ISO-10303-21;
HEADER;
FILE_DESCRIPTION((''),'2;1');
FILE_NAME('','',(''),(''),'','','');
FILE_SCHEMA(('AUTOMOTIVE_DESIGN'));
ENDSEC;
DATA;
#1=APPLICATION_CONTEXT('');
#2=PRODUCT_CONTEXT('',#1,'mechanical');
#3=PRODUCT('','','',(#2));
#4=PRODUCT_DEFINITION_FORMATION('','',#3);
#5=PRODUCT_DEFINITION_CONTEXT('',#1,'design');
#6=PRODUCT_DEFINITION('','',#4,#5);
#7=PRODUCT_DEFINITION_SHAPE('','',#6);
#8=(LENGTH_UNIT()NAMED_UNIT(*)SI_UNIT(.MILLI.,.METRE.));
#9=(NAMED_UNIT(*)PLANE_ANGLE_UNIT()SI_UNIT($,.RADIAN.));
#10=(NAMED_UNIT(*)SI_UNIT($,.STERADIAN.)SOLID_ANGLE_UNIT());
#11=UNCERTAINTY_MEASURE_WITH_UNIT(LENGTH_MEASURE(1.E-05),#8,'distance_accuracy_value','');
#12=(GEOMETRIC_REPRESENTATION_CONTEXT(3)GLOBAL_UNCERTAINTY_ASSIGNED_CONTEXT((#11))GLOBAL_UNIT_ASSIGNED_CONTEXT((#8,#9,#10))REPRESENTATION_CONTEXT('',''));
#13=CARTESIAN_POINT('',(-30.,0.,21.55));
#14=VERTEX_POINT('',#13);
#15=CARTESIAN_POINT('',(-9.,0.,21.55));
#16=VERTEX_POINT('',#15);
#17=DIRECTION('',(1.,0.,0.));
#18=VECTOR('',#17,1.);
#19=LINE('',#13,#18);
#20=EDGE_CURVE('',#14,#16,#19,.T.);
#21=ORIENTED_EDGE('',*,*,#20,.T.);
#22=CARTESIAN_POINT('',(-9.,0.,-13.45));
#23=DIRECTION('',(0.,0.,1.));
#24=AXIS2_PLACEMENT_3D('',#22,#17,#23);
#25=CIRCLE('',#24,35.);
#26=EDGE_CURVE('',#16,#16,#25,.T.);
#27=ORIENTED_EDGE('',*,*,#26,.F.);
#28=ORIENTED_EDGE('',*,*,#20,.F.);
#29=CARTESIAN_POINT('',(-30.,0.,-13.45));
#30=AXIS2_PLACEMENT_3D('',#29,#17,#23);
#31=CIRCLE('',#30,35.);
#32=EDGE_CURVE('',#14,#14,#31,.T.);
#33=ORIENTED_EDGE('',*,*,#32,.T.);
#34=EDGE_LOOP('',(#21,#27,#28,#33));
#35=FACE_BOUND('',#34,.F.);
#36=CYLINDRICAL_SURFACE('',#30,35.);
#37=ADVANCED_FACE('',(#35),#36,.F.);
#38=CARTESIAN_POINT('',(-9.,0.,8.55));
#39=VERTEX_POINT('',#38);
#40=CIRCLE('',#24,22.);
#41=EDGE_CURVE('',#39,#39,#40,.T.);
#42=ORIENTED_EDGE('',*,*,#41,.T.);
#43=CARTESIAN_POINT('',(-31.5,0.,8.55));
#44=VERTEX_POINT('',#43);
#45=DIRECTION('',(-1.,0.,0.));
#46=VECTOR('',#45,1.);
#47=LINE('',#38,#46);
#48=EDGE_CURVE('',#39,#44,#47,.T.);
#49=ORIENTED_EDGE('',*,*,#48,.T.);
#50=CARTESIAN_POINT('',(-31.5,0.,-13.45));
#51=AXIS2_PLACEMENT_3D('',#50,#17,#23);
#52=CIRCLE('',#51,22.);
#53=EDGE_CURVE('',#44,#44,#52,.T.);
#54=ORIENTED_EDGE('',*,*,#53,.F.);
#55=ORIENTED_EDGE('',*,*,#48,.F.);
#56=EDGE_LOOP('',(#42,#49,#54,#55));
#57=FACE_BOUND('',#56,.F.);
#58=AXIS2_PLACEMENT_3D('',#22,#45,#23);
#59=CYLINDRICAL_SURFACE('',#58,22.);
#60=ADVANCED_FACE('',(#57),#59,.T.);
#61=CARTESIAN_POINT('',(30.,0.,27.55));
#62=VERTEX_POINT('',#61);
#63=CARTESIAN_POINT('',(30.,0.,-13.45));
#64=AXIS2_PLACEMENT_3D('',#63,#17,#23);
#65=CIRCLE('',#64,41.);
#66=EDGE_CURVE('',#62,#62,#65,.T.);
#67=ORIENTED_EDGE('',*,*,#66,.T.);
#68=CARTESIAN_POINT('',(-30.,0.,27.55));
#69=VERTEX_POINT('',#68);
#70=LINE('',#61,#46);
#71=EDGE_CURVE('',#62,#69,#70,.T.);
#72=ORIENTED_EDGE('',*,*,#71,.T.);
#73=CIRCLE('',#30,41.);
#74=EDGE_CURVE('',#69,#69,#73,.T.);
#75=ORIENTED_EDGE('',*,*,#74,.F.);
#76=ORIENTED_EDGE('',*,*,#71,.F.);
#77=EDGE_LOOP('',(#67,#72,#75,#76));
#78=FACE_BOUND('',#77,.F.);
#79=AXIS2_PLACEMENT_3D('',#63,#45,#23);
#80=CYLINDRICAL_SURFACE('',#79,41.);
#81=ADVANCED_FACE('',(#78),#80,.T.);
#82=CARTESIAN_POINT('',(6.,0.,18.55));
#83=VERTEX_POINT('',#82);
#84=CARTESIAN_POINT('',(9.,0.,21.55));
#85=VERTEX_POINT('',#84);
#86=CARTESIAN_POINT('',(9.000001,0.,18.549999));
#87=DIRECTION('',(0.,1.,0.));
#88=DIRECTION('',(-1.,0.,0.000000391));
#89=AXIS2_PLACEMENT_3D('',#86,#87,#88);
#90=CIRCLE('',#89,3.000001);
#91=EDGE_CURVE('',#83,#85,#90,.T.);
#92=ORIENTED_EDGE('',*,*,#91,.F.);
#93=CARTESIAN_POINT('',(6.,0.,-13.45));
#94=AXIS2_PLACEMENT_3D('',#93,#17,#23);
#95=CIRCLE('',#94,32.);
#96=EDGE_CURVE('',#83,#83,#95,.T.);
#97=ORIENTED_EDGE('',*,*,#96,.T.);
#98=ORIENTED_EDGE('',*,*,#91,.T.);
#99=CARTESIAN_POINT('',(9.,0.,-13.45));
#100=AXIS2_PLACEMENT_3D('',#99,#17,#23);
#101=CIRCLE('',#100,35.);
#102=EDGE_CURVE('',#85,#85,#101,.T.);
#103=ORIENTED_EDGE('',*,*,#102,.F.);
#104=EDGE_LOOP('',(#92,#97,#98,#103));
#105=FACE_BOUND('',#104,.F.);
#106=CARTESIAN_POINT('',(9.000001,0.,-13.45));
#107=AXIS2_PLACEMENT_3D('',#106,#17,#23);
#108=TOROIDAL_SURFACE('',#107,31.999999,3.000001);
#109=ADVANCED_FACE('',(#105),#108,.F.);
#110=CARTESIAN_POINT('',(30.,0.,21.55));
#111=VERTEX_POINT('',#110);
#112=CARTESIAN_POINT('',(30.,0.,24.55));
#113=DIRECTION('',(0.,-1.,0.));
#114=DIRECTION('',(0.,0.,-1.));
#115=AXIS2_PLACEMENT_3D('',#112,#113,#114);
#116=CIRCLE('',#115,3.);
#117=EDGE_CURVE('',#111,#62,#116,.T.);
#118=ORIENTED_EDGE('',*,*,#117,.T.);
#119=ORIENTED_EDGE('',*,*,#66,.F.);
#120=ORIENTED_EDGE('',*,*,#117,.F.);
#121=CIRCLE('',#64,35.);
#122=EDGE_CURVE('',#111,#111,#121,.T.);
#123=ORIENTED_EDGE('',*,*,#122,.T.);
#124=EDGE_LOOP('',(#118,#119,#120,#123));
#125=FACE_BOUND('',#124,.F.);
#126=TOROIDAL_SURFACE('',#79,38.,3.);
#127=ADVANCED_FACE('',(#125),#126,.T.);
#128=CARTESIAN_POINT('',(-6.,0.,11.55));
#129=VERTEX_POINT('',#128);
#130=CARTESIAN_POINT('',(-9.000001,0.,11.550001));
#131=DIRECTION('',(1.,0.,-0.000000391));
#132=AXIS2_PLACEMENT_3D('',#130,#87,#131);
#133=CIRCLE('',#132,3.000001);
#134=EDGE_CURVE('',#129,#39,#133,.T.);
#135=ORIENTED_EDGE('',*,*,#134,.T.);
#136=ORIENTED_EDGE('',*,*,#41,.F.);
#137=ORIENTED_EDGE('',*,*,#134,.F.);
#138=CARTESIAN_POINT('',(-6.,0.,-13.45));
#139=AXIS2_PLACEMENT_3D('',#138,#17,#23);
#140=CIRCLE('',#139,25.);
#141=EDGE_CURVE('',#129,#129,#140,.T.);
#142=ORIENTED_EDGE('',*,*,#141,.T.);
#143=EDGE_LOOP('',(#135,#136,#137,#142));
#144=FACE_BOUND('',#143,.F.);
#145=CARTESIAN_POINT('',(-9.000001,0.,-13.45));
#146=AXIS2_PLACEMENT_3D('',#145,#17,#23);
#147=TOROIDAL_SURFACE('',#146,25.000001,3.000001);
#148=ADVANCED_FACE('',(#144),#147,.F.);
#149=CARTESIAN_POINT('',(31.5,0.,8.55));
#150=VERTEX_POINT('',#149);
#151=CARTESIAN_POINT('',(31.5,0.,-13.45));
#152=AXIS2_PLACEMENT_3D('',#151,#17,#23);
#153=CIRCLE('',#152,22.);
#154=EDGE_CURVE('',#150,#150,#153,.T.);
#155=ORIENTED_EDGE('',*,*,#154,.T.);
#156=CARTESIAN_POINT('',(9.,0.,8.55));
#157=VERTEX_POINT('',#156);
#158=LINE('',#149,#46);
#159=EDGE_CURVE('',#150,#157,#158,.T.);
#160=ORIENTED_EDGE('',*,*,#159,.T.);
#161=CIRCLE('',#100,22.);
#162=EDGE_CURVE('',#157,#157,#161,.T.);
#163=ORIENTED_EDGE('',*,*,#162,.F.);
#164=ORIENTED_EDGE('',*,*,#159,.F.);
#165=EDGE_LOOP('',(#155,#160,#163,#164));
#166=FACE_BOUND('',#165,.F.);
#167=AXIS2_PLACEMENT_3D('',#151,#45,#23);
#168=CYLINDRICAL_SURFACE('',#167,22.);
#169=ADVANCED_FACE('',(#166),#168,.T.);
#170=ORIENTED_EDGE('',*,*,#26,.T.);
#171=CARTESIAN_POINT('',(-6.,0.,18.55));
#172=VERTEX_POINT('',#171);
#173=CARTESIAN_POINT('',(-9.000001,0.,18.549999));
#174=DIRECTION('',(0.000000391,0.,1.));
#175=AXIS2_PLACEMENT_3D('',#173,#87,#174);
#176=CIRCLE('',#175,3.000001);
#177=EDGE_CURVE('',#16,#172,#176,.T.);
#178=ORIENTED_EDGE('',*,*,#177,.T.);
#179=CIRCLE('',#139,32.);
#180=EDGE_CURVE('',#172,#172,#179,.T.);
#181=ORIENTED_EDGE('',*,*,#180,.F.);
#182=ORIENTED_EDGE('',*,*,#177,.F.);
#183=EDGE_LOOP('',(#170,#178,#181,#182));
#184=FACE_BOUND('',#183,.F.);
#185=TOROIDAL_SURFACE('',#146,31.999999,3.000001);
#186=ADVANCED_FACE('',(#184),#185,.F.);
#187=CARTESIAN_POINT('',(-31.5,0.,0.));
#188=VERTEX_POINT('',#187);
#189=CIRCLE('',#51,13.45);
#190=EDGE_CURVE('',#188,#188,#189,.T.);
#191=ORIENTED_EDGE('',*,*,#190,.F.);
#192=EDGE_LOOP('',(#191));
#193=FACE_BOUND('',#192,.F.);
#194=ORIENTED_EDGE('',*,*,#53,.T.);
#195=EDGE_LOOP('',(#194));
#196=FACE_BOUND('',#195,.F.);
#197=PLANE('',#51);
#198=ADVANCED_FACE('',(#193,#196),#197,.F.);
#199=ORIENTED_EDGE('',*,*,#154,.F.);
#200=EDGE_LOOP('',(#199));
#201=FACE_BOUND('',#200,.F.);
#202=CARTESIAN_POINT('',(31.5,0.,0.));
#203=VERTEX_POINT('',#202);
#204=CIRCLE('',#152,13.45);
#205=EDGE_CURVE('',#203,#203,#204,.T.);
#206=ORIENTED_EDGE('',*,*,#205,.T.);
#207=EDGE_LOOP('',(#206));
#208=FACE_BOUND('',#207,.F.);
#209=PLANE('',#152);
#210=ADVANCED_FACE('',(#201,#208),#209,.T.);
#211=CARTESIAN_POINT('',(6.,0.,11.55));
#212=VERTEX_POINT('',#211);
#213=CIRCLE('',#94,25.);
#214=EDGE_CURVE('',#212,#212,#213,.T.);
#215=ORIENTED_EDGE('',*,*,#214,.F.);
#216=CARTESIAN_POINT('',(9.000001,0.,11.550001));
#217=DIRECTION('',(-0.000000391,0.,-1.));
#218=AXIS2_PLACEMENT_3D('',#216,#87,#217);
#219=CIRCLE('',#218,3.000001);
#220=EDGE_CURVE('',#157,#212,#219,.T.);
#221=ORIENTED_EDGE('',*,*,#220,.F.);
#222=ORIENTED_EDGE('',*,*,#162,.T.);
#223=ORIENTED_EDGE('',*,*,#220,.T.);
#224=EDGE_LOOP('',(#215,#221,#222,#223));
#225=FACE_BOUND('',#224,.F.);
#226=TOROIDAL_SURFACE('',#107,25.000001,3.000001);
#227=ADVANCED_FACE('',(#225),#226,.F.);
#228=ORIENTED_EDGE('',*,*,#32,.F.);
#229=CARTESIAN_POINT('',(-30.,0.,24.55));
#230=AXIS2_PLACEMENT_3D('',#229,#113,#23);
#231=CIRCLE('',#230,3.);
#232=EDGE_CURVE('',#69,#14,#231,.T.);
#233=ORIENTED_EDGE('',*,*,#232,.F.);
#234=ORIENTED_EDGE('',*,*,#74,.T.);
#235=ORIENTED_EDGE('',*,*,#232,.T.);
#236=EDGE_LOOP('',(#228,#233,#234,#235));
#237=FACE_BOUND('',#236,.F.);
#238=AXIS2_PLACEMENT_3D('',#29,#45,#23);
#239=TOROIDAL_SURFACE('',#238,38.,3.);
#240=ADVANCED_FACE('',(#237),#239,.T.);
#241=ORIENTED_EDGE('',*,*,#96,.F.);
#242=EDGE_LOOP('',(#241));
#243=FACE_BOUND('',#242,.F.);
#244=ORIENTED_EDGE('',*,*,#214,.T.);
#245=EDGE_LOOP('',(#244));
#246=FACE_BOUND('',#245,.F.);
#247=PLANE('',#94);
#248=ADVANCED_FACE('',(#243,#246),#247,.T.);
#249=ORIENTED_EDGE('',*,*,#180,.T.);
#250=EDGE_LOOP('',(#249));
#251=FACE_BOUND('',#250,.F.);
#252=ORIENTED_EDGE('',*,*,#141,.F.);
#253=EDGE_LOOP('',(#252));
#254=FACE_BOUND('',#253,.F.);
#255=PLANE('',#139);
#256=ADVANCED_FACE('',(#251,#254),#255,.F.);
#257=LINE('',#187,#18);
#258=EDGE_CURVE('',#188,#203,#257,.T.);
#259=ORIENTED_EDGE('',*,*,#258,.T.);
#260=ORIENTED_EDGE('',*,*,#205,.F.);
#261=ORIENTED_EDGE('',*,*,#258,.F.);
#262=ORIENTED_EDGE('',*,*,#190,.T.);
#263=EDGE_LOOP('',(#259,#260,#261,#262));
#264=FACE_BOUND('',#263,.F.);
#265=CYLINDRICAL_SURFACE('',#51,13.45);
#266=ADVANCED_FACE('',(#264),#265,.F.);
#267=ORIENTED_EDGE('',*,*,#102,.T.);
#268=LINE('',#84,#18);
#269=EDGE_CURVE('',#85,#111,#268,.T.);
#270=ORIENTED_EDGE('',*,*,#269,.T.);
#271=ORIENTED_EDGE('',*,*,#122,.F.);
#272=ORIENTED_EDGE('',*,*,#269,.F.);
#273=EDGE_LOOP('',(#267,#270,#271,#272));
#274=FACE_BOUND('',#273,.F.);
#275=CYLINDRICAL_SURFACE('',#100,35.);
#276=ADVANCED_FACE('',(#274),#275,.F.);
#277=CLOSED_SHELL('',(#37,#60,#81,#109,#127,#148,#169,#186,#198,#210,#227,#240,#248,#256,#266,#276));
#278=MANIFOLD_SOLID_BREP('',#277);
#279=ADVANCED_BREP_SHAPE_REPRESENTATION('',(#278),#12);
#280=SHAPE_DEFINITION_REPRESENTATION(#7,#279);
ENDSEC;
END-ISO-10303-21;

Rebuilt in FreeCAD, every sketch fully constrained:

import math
import FreeCAD as App
import Part
import Sketcher

V = App.Vector
Q = App.Units.Quantity

doc = App.newDocument("Part")
body = doc.addObject("PartDesign::Body", "Body")

sketch1 = doc.addObject("Sketcher::SketchObject", "Sketch")
body.addObject(sketch1)
sketch1.AttachmentSupport = (doc.XZ_Plane, [""])
sketch1.MapMode = "FlatFace"
sketch1.addGeometry(Part.LineSegment(V(-31.5, 0, 0), V(31.5, 0, 0)), False)
sketch1.addGeometry(Part.LineSegment(V(31.5, 0, 0), V(31.5, 8.6, 0)), False)
sketch1.addGeometry(Part.LineSegment(V(31.5, 8.6, 0), V(9, 8.6, 0)), False)
sketch1.addGeometry(Part.ArcOfCircle(Part.Circle(V(9, 11.6, 0), V(0, 0, 1), 3), math.radians(-180), math.radians(-90)), False)
sketch1.addGeometry(Part.LineSegment(V(6, 11.6, 0), V(6, 18.6, 0)), False)
sketch1.addGeometry(Part.ArcOfCircle(Part.Circle(V(9, 18.5, 0), V(0, 0, 1), 3), math.radians(90), math.radians(180)), False)
sketch1.addGeometry(Part.LineSegment(V(9, 21.6, 0), V(30, 21.6, 0)), False)
sketch1.addGeometry(Part.ArcOfCircle(Part.Circle(V(30, 24.6, 0), V(0, 0, 1), 3), math.radians(-90), math.radians(90)), False)
sketch1.addGeometry(Part.LineSegment(V(30, 27.6, 0), V(-30, 27.6, 0)), False)
sketch1.addGeometry(Part.ArcOfCircle(Part.Circle(V(-30, 24.6, 0), V(0, 0, 1), 3), math.radians(90), math.radians(270)), False)
sketch1.addGeometry(Part.LineSegment(V(-30, 21.6, 0), V(-9, 21.6, 0)), False)
sketch1.addGeometry(Part.ArcOfCircle(Part.Circle(V(-9, 18.5, 0), V(0, 0, 1), 3), math.radians(0), math.radians(90)), False)
sketch1.addGeometry(Part.LineSegment(V(-6, 18.6, 0), V(-6, 11.6, 0)), False)
sketch1.addGeometry(Part.ArcOfCircle(Part.Circle(V(-9, 11.6, 0), V(0, 0, 1), 3), math.radians(-90), math.radians(0)), False)
sketch1.addGeometry(Part.LineSegment(V(-9, 8.6, 0), V(-31.5, 8.6, 0)), False)
sketch1.addGeometry(Part.LineSegment(V(-31.5, 8.6, 0), V(-31.5, 0, 0)), False)
sketch1.addGeometry(Part.LineSegment(V(-31.5, -13.4, 0), V(31.5, -13.4, 0)), True)
sketch1.addConstraint(Sketcher.Constraint("Coincident", 0, 2, 1, 1))
sketch1.addConstraint(Sketcher.Constraint("Coincident", 1, 2, 2, 1))
sketch1.addConstraint(Sketcher.Constraint("Tangent", 2, 2, 3, 2))
sketch1.addConstraint(Sketcher.Constraint("Tangent", 3, 1, 4, 1))
sketch1.addConstraint(Sketcher.Constraint("Tangent", 4, 2, 5, 2))
sketch1.addConstraint(Sketcher.Constraint("Tangent", 5, 1, 6, 1))
sketch1.addConstraint(Sketcher.Constraint("Tangent", 6, 2, 7, 1))
sketch1.addConstraint(Sketcher.Constraint("Tangent", 7, 2, 8, 1))
sketch1.addConstraint(Sketcher.Constraint("Tangent", 8, 2, 9, 1))
sketch1.addConstraint(Sketcher.Constraint("Tangent", 9, 2, 10, 1))
sketch1.addConstraint(Sketcher.Constraint("Tangent", 10, 2, 11, 2))
sketch1.addConstraint(Sketcher.Constraint("Tangent", 11, 1, 12, 1))
sketch1.addConstraint(Sketcher.Constraint("Tangent", 12, 2, 13, 2))
sketch1.addConstraint(Sketcher.Constraint("Tangent", 13, 1, 14, 1))
sketch1.addConstraint(Sketcher.Constraint("Coincident", 14, 2, 15, 1))
sketch1.addConstraint(Sketcher.Constraint("Coincident", 15, 2, 0, 1))
sketch1.addConstraint(Sketcher.Constraint("Horizontal", 0))
sketch1.addConstraint(Sketcher.Constraint("Vertical", 1))
sketch1.addConstraint(Sketcher.Constraint("Horizontal", 2))
sketch1.addConstraint(Sketcher.Constraint("Vertical", 4))
sketch1.addConstraint(Sketcher.Constraint("Horizontal", 6))
sketch1.addConstraint(Sketcher.Constraint("Horizontal", 8))
sketch1.addConstraint(Sketcher.Constraint("Horizontal", 10))
sketch1.addConstraint(Sketcher.Constraint("Vertical", 12))
sketch1.addConstraint(Sketcher.Constraint("Horizontal", 14))
sketch1.addConstraint(Sketcher.Constraint("Vertical", 15))
sketch1.addConstraint(Sketcher.Constraint("Horizontal", 16))
sketch1.addConstraint(Sketcher.Constraint("Equal", 3, 5))
sketch1.addConstraint(Sketcher.Constraint("Equal", 5, 7))
sketch1.addConstraint(Sketcher.Constraint("Equal", 7, 9))
sketch1.addConstraint(Sketcher.Constraint("Equal", 9, 11))
sketch1.addConstraint(Sketcher.Constraint("Equal", 11, 13))
sketch1.addConstraint(Sketcher.Constraint("Symmetric", 0, 2, 15, 2, -1, 1))
sketch1.addConstraint(Sketcher.Constraint("Symmetric", 3, 3, 13, 3, -2))
sketch1.addConstraint(Sketcher.Constraint("Vertical", 15, 2, 16, 1))
sketch1.addConstraint(Sketcher.Constraint("Vertical", 1, 2, 16, 2))
sketch1.addConstraint(Sketcher.Constraint("Equal", 6, 10))
sketch1.addConstraint(Sketcher.Constraint("Radius", 3, Q("3.000001 mm")))
sketch1.addConstraint(Sketcher.Constraint("DistanceX", 0, 1, 0, 2, Q("63 mm")))
sketch1.addConstraint(Sketcher.Constraint("DistanceX", 6, 1, 6, 2, Q("21 mm")))
sketch1.addConstraint(Sketcher.Constraint("DistanceX", 8, 2, 8, 1, Q("60 mm")))
sketch1.addConstraint(Sketcher.Constraint("DistanceY", 4, 1, 4, 2, Q("7 mm")))
sketch1.addConstraint(Sketcher.Constraint("DistanceY", 16, 1, 14, 2, Q("22 mm")))
sketch1.addConstraint(Sketcher.Constraint("DistanceY", 1, 1, 1, 2, Q("8.55 mm")))
revolution = doc.addObject("PartDesign::Revolution", "Revolution")
body.addObject(revolution)
revolution.Profile = sketch1
revolution.ReferenceAxis = (sketch1, ["Axis0"])
revolution.Angle = 360

doc.recompute()
